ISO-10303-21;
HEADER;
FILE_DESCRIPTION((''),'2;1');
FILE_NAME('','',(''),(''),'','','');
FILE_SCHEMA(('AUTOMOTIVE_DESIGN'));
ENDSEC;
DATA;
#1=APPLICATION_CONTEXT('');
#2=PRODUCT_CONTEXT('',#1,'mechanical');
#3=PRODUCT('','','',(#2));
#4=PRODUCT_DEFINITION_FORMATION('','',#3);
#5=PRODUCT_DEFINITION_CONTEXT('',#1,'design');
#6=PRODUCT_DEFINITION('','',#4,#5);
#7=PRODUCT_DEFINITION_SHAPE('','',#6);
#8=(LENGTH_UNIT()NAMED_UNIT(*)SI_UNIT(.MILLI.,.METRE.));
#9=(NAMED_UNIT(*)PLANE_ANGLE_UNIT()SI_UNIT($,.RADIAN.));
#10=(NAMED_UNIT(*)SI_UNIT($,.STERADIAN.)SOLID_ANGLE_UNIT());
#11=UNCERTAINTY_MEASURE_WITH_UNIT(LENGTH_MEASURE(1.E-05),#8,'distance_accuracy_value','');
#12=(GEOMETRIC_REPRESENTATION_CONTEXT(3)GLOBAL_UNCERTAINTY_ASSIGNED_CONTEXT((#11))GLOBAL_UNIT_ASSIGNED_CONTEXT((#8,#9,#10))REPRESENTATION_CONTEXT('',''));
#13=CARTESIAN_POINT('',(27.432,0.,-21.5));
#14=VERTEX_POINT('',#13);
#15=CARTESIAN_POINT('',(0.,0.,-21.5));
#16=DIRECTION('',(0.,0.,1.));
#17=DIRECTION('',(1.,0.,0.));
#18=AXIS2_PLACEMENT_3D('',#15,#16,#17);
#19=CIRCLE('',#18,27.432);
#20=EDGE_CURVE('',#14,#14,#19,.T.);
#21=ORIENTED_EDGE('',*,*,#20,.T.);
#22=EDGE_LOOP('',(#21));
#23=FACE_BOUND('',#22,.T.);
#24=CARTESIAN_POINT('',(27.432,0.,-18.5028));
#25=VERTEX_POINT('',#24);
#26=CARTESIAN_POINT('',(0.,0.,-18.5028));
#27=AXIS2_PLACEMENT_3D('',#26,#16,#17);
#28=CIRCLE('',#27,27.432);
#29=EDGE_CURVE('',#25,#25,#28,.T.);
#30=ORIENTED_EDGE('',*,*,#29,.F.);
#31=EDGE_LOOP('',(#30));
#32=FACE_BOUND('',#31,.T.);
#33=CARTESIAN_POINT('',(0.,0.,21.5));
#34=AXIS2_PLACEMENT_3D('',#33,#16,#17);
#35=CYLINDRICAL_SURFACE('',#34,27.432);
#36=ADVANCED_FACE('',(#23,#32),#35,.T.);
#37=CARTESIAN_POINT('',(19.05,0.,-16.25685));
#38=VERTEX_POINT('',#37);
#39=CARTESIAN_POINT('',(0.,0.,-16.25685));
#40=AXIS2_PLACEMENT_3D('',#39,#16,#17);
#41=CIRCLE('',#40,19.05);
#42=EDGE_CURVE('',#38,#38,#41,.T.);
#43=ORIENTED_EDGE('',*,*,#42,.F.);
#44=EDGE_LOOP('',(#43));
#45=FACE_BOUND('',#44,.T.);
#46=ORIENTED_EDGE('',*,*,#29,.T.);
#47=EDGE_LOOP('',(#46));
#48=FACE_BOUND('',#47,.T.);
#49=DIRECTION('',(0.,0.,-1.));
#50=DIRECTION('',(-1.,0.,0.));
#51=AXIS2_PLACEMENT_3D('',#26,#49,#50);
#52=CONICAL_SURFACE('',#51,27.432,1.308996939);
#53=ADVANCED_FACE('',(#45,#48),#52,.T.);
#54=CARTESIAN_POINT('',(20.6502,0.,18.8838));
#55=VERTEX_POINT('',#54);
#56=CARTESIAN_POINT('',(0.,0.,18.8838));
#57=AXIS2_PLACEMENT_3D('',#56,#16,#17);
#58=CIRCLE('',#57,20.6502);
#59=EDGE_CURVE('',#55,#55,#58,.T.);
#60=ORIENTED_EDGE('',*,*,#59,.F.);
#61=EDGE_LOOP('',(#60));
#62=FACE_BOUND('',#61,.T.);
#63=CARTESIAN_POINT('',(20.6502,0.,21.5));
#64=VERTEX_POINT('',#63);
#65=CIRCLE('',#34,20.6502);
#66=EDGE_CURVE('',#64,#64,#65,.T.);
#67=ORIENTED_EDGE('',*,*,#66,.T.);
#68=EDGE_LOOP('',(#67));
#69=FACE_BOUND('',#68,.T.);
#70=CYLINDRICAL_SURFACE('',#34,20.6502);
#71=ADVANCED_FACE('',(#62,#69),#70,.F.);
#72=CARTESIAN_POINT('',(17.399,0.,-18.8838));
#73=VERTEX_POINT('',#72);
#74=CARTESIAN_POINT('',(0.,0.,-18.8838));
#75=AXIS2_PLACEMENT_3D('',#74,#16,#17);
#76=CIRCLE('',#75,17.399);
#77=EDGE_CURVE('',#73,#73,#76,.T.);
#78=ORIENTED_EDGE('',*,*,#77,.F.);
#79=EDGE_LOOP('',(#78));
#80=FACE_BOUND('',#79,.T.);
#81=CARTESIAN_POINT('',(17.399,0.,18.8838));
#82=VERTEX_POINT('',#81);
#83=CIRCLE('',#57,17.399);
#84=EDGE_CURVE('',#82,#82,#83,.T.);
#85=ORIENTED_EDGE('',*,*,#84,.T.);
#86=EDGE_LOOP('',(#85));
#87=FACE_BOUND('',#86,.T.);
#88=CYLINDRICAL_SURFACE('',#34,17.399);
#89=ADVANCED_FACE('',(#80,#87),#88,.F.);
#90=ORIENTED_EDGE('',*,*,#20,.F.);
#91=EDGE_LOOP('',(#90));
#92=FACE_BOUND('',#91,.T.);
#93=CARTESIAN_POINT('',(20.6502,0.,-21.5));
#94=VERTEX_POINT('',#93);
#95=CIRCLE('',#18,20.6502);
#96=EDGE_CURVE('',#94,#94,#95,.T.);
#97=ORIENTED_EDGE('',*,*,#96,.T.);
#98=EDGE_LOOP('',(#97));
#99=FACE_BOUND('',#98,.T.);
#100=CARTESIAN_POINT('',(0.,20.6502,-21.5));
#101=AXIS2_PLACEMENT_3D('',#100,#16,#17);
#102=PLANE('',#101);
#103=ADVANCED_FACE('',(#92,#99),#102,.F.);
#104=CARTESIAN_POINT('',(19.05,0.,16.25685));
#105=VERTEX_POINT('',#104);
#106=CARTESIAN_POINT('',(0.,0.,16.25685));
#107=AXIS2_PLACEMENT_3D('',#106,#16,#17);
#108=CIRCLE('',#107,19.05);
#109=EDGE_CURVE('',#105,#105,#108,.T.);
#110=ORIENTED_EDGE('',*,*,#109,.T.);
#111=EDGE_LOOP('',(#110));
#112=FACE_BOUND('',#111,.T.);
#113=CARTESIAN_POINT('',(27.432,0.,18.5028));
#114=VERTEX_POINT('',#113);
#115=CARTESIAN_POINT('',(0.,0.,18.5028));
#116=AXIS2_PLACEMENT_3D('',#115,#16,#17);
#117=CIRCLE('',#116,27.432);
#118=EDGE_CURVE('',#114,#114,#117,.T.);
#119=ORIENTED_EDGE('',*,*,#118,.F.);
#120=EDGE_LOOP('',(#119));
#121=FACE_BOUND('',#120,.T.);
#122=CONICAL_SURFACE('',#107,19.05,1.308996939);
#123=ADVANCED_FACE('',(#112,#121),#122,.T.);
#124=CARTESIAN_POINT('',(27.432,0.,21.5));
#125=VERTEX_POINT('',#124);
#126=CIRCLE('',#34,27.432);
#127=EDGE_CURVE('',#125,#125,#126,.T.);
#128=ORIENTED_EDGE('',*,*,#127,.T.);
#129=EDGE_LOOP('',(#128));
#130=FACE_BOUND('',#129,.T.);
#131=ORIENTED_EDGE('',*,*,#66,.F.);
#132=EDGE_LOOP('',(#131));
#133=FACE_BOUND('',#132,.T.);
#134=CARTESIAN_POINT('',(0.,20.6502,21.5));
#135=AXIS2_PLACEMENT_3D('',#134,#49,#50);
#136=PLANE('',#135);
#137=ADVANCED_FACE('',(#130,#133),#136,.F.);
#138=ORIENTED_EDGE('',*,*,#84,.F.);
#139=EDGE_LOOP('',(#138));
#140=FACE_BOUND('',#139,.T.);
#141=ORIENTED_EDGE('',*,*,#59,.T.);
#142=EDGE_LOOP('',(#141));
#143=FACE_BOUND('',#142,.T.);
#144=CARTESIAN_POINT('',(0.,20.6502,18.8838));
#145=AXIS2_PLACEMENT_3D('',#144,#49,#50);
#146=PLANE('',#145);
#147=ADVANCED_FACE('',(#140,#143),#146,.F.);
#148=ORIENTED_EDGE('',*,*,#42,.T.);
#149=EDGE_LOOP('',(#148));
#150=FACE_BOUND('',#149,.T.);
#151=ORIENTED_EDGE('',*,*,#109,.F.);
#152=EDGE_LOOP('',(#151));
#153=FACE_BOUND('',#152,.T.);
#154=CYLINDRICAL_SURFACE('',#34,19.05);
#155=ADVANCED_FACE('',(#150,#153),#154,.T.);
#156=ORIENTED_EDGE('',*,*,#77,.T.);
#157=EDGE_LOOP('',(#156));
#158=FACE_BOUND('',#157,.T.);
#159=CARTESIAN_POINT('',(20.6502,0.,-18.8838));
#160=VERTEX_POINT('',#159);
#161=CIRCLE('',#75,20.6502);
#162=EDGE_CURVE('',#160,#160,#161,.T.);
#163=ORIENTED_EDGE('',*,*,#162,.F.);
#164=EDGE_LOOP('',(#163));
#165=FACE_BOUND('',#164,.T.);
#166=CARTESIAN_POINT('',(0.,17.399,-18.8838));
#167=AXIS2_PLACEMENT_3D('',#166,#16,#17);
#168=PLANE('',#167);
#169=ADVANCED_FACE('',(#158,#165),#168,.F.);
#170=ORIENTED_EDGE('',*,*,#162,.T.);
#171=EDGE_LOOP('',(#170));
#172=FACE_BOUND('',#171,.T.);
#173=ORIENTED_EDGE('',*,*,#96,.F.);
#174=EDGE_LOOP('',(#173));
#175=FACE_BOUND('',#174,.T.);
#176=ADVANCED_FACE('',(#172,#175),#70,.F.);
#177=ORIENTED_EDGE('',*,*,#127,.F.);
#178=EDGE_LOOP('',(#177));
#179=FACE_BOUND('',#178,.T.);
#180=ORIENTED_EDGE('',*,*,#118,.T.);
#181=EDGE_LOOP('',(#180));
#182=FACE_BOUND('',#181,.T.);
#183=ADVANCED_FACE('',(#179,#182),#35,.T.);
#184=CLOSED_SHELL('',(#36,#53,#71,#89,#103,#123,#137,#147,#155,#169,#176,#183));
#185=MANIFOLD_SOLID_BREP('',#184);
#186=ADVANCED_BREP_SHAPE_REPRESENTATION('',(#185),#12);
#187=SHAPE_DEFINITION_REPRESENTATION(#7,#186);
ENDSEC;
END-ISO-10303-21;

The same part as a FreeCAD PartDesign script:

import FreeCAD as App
import Part
import Sketcher

V = App.Vector
Q = App.Units.Quantity

doc = App.newDocument("Part")
body = doc.addObject("PartDesign::Body", "Body")

sketch1 = body.newObject("Sketcher::SketchObject", "Sketch")
sketch1.AttachmentSupport = (doc.getObject("YZ_Plane"), [""])
sketch1.MapMode = "FlatFace"
sketch1.addGeometry([
    Part.LineSegment(V(20.7, -21.5, 0), V(27.4, -21.5, 0)),
    Part.LineSegment(V(27.4, -21.5, 0), V(27.4, -18.5, 0)),
    Part.LineSegment(V(27.4, -18.5, 0), V(19.1, -16.3, 0)),
    Part.LineSegment(V(19.1, -16.3, 0), V(19.1, 16.3, 0)),
    Part.LineSegment(V(19.1, 16.3, 0), V(27.4, 18.5, 0)),
    Part.LineSegment(V(27.4, 18.5, 0), V(27.4, 21.5, 0)),
    Part.LineSegment(V(27.4, 21.5, 0), V(20.7, 21.5, 0)),
    Part.LineSegment(V(20.7, 21.5, 0), V(20.7, 18.9, 0)),
    Part.LineSegment(V(20.7, 18.9, 0), V(17.4, 18.9, 0)),
    Part.LineSegment(V(17.4, 18.9, 0), V(17.4, -18.9, 0)),
    Part.LineSegment(V(17.4, -18.9, 0), V(20.7, -18.9, 0)),
    Part.LineSegment(V(20.7, -18.9, 0), V(20.7, -21.5, 0)),
], False)
sketch1.addConstraint([
    Sketcher.Constraint("Coincident", 0, 2, 1, 1),
    Sketcher.Constraint("Coincident", 1, 2, 2, 1),
    Sketcher.Constraint("Coincident", 2, 2, 3, 1),
    Sketcher.Constraint("Coincident", 3, 2, 4, 1),
    Sketcher.Constraint("Coincident", 4, 2, 5, 1),
    Sketcher.Constraint("Coincident", 5, 2, 6, 1),
    Sketcher.Constraint("Coincident", 6, 2, 7, 1),
    Sketcher.Constraint("Coincident", 7, 2, 8, 1),
    Sketcher.Constraint("Coincident", 8, 2, 9, 1),
    Sketcher.Constraint("Coincident", 9, 2, 10, 1),
    Sketcher.Constraint("Coincident", 10, 2, 11, 1),
    Sketcher.Constraint("Coincident", 11, 2, 0, 1),
    Sketcher.Constraint("Horizontal", 0),
    Sketcher.Constraint("Vertical", 1),
    Sketcher.Constraint("Vertical", 3),
    Sketcher.Constraint("Vertical", 5),
    Sketcher.Constraint("Horizontal", 6),
    Sketcher.Constraint("Vertical", 7),
    Sketcher.Constraint("Horizontal", 8),
    Sketcher.Constraint("Vertical", 9),
    Sketcher.Constraint("Horizontal", 10),
    Sketcher.Constraint("Vertical", 11),
    Sketcher.Constraint("Symmetric", 1, 2, 4, 2, -1),
    Sketcher.Constraint("Symmetric", 7, 2, 10, 2, -1),
    Sketcher.Constraint("Equal", 1, 5),
    Sketcher.Constraint("Equal", 2, 4),
    Sketcher.Constraint("Angle", 2, Q("165 deg")),
    Sketcher.Constraint("DistanceX", 0, 1, 0, 2, Q("0.267 in")),
    Sketcher.Constraint("DistanceX", 8, 2, 8, 1, Q("0.128 in")),
    Sketcher.Constraint("DistanceY", 1, 1, 1, 2, Q("0.118 in")),
    Sketcher.Constraint("DistanceY", 7, 2, 7, 1, Q("0.103 in")),
    Sketcher.Constraint("DistanceX", -1, 1, 0, 2, Q("1.08 in")),
    Sketcher.Constraint("DistanceX", -1, 1, 2, 2, Q("0.75 in")),
    Sketcher.Constraint("DistanceY", 3, 1, 3, 2, 32.5137),
])
revolution = body.newObject("PartDesign::Revolution", "Revolution")
revolution.Profile = sketch1
revolution.ReferenceAxis = (sketch1, ["V_Axis"])
revolution.Angle = 360

doc.recompute()
